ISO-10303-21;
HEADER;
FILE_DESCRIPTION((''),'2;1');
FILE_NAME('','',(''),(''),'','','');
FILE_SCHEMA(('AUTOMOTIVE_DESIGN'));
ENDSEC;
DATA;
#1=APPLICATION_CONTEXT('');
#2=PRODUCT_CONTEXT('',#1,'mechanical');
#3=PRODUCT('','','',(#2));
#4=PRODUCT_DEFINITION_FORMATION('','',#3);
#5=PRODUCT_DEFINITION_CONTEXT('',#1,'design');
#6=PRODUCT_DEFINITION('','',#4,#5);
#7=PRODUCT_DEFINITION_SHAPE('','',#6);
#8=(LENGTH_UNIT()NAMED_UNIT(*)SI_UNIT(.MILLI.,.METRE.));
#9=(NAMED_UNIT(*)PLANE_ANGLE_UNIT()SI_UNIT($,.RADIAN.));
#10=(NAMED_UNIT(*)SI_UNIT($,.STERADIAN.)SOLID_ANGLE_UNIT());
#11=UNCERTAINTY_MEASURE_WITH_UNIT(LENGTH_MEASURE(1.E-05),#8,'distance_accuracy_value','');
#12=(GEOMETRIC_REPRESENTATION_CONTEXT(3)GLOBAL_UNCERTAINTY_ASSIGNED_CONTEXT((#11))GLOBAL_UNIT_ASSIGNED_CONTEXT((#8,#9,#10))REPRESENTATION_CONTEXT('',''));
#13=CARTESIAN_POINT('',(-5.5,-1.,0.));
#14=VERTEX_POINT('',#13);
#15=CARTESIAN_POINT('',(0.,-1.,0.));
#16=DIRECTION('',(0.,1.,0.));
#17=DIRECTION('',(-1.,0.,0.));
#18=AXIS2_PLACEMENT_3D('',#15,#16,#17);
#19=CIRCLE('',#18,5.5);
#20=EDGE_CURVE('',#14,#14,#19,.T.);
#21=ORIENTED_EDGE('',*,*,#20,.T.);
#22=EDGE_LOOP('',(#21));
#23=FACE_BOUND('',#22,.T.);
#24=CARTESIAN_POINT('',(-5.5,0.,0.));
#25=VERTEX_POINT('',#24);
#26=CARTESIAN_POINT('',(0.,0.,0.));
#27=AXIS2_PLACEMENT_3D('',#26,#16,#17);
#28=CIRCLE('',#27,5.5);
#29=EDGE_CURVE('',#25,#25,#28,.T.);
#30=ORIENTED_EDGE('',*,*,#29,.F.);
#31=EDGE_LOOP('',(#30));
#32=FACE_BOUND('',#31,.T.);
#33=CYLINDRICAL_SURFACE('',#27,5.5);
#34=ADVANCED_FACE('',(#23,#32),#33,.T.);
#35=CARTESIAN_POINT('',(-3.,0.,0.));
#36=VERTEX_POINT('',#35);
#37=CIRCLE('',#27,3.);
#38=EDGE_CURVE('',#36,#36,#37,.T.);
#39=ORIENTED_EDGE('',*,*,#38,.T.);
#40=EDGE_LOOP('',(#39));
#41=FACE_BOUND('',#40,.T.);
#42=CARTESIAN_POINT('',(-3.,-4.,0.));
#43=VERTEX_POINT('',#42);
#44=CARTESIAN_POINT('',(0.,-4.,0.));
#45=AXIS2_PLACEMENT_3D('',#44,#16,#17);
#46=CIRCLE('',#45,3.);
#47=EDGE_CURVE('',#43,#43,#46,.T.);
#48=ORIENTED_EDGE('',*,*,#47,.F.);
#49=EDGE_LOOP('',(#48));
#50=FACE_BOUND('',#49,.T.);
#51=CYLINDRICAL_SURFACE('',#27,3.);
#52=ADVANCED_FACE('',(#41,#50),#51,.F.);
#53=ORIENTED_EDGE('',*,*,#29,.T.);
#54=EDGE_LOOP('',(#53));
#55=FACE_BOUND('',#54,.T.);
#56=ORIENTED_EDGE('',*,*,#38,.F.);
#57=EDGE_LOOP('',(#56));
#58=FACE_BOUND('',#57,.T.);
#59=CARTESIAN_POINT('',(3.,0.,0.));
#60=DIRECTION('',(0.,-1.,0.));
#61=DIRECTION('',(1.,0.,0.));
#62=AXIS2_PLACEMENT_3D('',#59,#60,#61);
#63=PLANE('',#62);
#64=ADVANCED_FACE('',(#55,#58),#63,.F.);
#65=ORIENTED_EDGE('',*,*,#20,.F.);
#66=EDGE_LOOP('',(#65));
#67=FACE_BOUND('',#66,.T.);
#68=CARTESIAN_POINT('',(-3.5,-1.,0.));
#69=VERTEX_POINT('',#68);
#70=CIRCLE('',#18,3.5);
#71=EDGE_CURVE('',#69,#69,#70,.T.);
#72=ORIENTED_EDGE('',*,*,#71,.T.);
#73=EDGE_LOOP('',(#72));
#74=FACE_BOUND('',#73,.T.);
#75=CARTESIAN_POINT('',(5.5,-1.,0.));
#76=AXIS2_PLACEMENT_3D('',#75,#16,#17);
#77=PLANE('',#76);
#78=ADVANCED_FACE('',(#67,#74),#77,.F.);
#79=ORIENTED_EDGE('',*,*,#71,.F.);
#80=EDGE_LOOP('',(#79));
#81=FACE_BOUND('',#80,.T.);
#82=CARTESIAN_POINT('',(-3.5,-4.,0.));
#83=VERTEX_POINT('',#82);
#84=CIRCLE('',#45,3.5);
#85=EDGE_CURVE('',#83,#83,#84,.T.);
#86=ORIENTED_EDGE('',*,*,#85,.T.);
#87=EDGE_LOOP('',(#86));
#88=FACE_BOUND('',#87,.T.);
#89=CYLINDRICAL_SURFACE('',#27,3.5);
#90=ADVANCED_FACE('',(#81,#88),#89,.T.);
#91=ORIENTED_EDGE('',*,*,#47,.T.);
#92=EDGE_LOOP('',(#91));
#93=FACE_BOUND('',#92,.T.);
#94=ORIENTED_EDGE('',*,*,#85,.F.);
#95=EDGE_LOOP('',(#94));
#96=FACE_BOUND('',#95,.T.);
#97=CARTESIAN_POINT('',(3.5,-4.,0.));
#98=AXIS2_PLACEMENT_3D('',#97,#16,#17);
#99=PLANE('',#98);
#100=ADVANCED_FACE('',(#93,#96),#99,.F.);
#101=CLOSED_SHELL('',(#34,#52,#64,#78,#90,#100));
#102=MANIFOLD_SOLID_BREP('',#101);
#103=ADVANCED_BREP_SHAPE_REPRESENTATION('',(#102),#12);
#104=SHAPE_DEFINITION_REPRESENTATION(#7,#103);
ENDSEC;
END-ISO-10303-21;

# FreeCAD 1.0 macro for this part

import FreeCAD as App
import Part
import Sketcher


def add_polygon(sketch, points):
    """Adds a closed chain of lines whose ends are joined by coincident constraints."""
    first, n = sketch.GeometryCount, len(points)
    for a, b in zip(points, points[1:] + points[:1]):
        sketch.addGeometry(Part.LineSegment(App.Vector(*a, 0), App.Vector(*b, 0)), False)
    for i in range(n):
        sketch.addConstraint(Sketcher.Constraint("Coincident", first + i, 2, first + (i + 1) % n, 1))

doc = App.newDocument("Part")
body = doc.addObject("PartDesign::Body", "Body")

# Sketch on XY plane
sketch1 = body.newObject("Sketcher::SketchObject", "Sketch")
sketch1.AttachmentSupport = (doc.getObject("XY_Plane"), [""])
sketch1.MapMode = "FlatFace"
add_polygon(sketch1, [(5.5, 0), (3, 0), (3, -4), (3.5, -4), (3.5, -1), (5.5, -1)])  # lines 0-5
sketch1.addConstraint([
    Sketcher.Constraint("Horizontal", 0),
    Sketcher.Constraint("Vertical", 1),
    Sketcher.Constraint("Horizontal", 2),
    Sketcher.Constraint("Vertical", 3),
    Sketcher.Constraint("Horizontal", 4),
    Sketcher.Constraint("Vertical", 5),
    Sketcher.Constraint("PointOnObject", 0, 2, -1),
    Sketcher.Constraint("DistanceX", 4, 1, 4, 2, 2.0),
    Sketcher.Constraint("DistanceY", 1, 2, 1, 1, 4.0),
    Sketcher.Constraint("DistanceY", 3, 1, 3, 2, 3.0),
    Sketcher.Constraint("DistanceX", 0, 2, 0, 1, 2.5),
    Sketcher.Constraint("DistanceX", -1, 1, 0, 2, 3.0),
])
revolution = body.newObject("PartDesign::Revolution", "Revolution")
revolution.Profile = sketch1
revolution.ReferenceAxis = (sketch1, ["V_Axis"])
revolution.Angle = 360

doc.recompute()
